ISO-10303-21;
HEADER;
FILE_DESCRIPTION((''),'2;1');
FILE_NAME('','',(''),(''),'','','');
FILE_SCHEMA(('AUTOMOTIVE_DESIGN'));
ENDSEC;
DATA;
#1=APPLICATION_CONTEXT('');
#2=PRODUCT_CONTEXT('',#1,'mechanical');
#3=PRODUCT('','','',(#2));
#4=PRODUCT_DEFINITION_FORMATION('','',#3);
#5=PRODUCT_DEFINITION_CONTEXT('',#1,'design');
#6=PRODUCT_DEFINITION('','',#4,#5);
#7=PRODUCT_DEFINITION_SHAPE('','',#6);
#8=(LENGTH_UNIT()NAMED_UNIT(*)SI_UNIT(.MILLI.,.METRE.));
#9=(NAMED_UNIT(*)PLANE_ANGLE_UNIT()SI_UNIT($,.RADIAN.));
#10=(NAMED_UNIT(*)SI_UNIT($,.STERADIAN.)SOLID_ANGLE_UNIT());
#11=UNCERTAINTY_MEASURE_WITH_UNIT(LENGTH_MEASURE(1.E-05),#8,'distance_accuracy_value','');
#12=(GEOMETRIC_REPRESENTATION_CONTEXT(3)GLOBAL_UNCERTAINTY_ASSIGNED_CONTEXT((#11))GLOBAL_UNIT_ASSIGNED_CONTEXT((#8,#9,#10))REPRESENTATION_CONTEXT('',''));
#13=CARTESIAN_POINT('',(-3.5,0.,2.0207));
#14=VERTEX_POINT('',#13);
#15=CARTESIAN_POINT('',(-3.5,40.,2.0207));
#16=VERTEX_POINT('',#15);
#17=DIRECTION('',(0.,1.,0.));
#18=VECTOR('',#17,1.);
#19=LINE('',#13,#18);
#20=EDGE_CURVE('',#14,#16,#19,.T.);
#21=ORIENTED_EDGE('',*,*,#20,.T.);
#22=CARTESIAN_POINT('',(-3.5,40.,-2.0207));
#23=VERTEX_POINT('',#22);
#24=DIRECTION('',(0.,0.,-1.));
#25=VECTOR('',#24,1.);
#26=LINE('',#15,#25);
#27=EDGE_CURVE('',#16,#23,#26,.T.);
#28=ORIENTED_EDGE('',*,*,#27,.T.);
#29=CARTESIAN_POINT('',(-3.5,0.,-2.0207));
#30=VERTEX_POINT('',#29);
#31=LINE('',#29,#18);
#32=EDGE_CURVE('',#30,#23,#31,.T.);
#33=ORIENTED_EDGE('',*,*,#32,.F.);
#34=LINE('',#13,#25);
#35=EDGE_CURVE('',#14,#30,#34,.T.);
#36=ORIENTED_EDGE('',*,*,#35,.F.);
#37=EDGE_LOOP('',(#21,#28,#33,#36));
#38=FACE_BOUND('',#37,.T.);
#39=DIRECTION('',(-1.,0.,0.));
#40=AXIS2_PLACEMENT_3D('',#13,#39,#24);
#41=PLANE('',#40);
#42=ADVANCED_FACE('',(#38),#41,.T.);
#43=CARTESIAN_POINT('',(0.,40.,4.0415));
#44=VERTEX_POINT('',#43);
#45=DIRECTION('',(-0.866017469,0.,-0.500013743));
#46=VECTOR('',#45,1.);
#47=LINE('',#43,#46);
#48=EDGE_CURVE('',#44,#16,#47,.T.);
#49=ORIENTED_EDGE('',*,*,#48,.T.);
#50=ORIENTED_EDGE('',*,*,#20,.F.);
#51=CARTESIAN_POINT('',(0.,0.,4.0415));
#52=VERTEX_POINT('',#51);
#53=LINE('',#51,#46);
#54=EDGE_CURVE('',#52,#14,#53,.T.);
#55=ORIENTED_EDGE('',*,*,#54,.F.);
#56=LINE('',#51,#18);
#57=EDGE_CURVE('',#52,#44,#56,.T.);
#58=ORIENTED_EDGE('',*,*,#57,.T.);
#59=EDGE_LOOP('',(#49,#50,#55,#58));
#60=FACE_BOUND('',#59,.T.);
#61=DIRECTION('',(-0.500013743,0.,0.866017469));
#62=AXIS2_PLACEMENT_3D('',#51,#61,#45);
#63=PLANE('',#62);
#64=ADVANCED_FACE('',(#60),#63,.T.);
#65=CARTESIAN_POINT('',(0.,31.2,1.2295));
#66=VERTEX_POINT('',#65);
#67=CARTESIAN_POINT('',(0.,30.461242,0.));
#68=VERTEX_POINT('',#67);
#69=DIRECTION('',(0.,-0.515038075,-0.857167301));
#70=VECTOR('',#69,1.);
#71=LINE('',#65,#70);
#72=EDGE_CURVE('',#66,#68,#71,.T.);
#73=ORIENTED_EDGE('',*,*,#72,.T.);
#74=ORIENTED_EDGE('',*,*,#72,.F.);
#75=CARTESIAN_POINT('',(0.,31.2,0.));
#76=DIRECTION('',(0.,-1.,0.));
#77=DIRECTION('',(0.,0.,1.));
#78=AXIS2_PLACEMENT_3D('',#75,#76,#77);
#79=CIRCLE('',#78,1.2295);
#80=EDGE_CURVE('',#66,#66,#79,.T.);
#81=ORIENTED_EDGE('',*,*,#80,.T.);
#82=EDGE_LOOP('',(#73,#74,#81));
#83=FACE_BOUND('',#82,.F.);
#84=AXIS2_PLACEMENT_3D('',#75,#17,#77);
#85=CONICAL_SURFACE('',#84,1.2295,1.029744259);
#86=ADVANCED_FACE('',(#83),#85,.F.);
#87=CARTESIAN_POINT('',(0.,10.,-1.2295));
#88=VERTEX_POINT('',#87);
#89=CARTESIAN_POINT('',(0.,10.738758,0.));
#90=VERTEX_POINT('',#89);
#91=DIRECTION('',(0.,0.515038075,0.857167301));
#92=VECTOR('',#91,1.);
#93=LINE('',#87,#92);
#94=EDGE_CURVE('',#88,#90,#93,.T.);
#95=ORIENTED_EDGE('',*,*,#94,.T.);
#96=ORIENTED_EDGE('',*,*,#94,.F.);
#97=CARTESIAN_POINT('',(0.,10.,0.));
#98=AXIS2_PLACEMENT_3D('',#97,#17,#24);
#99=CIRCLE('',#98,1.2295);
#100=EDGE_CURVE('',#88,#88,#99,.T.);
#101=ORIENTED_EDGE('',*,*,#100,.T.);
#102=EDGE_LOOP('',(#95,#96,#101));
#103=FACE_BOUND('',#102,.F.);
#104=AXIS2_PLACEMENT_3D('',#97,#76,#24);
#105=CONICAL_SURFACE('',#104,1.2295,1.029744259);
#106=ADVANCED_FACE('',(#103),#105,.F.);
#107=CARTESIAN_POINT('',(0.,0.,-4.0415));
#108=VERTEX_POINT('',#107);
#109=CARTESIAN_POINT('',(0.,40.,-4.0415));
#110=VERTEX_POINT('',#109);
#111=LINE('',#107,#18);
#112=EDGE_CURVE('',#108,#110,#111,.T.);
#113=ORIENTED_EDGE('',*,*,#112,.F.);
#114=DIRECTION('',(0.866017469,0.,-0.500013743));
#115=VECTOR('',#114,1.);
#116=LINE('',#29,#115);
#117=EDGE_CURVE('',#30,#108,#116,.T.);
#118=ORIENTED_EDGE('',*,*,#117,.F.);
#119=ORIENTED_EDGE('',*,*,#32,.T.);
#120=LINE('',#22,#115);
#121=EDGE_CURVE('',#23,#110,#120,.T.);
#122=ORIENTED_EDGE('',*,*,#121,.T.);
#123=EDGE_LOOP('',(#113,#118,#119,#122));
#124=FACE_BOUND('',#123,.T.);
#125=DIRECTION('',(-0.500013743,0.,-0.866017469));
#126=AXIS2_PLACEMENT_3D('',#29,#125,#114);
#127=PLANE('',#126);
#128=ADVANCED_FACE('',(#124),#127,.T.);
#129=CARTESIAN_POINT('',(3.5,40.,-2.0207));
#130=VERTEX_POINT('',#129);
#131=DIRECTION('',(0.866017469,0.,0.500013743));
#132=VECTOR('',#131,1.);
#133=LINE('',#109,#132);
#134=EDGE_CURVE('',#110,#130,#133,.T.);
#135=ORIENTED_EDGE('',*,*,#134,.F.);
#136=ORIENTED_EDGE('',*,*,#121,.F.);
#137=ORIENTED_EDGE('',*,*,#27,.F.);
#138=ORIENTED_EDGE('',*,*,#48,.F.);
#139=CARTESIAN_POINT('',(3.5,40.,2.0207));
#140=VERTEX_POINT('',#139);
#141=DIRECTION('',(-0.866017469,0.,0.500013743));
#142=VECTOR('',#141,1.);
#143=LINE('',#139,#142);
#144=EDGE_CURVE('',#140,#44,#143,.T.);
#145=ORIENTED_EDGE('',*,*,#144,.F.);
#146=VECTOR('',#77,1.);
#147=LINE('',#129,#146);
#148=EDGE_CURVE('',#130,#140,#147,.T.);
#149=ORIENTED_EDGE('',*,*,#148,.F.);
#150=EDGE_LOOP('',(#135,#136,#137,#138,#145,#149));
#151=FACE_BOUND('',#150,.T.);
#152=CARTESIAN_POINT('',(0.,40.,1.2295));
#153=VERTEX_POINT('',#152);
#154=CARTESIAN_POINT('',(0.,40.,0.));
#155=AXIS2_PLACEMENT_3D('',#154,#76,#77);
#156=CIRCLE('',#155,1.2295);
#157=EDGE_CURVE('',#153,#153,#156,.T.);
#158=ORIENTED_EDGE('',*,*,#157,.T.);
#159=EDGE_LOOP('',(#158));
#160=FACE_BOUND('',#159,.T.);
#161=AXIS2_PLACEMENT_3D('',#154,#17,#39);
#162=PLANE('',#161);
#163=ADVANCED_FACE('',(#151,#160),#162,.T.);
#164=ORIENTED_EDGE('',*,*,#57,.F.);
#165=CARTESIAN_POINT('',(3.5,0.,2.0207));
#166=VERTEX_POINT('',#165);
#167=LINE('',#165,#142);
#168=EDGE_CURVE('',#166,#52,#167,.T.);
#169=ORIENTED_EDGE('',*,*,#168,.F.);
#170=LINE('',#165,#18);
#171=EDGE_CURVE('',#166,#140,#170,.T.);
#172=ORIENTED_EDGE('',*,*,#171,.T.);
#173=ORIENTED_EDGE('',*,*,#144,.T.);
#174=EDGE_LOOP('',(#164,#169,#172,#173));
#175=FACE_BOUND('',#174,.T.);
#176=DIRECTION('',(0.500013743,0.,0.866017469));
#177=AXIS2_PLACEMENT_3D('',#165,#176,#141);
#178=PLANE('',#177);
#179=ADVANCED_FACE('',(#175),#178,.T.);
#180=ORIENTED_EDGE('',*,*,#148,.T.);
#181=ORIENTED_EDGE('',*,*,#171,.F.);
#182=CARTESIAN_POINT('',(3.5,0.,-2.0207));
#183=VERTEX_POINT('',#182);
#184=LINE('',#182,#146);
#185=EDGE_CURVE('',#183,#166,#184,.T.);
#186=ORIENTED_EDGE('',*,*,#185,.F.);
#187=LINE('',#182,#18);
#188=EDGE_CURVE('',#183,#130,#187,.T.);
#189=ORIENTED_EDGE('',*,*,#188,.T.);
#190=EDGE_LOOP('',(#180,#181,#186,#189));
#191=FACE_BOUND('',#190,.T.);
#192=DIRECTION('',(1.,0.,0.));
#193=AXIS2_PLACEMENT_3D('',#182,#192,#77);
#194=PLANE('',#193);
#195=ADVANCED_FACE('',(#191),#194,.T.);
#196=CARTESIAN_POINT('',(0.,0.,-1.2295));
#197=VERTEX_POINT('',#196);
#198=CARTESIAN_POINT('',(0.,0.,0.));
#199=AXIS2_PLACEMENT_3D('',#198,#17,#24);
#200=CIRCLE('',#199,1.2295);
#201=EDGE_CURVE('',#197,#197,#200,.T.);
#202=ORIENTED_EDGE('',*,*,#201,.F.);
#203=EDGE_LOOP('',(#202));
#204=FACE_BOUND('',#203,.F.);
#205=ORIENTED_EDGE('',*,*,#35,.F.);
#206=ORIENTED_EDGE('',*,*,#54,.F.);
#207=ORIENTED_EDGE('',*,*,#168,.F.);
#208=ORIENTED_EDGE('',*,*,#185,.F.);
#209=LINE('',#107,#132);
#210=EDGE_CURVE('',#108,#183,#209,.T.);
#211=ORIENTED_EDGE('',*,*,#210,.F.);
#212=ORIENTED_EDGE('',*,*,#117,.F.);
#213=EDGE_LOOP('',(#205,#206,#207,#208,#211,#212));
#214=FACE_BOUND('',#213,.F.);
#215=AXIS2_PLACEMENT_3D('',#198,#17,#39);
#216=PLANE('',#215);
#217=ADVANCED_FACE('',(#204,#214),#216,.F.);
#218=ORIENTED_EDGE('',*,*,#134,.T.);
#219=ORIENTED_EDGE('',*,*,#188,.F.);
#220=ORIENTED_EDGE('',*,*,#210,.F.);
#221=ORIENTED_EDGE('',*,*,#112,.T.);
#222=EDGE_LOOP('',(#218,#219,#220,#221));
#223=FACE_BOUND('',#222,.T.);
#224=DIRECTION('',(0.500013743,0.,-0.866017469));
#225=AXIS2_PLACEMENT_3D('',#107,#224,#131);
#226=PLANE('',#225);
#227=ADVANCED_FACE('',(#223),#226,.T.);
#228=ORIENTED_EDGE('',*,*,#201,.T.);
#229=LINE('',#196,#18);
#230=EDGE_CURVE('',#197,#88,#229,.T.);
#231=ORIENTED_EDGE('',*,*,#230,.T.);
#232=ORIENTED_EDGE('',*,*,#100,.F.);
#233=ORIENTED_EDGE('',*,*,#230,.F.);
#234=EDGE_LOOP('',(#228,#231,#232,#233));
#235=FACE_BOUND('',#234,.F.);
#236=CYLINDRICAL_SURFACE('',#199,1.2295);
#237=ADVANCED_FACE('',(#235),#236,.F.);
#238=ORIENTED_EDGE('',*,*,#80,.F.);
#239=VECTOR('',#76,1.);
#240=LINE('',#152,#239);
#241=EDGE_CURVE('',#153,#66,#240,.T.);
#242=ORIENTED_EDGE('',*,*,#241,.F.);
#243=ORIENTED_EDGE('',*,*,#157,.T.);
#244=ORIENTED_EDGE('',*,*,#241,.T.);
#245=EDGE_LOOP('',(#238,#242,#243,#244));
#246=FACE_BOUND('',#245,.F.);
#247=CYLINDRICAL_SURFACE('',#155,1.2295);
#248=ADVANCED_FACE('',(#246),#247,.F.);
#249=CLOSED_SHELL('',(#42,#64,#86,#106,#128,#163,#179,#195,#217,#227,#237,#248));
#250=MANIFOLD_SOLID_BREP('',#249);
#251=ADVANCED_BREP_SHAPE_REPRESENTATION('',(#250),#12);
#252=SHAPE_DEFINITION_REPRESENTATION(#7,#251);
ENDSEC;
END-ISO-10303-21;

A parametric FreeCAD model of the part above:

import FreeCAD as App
import Part
import Sketcher

V = App.Vector
Q = App.Units.Quantity


def add_polygon(sketch, points):
    """Adds a closed chain of lines whose ends are joined by coincident constraints."""
    first, n = sketch.GeometryCount, len(points)
    for a, b in zip(points, points[1:] + points[:1]):
        sketch.addGeometry(Part.LineSegment(App.Vector(*a, 0), App.Vector(*b, 0)), False)
    for i in range(n):
        sketch.addConstraint(Sketcher.Constraint("Coincident", first + i, 2, first + (i + 1) % n, 1))

doc = App.newDocument("Part")
body = doc.addObject("PartDesign::Body", "Body")

sketch1 = doc.addObject("Sketcher::SketchObject", "Sketch")
body.addObject(sketch1)
sketch1.AttachmentSupport = (doc.XZ_Plane, [""])
sketch1.MapMode = "FlatFace"
add_polygon(sketch1, [(3.5, 2), (3.5, -2), (0, -4), (-3.5, -2), (-3.5, 2), (0, 4)])
sketch1.addConstraint([
    Sketcher.Constraint("Vertical", 0),
    Sketcher.Constraint("Vertical", 3),
    Sketcher.Constraint("Symmetric", 0, 2, 3, 2, -1, 1),
    Sketcher.Constraint("Symmetric", 1, 2, 4, 2, -1, 1),
    Sketcher.Constraint("PointOnObject", 1, 2, -2),
    Sketcher.Constraint("Parallel", 2, 5),
    Sketcher.Constraint("Horizontal", 0, 2, 2, 2),
    Sketcher.Constraint("DistanceX", 2, 2, 0, 2, Q("7 mm")),
    Sketcher.Constraint("Angle", 1, Q("-149.999 deg")),
    Sketcher.Constraint("DistanceY", 0, 2, 0, 1, Q("4.0414 mm")),
])
pad1 = doc.addObject("PartDesign::Pad", "Pad")
body.addObject(pad1)
pad1.Profile = sketch1
pad1.Length = 40
pad1.Reversed = True

sketch2 = doc.addObject("Sketcher::SketchObject", "Sketch001")
body.addObject(sketch2)
sketch2.AttachmentSupport = (doc.XZ_Plane, [""])
sketch2.MapMode = "FlatFace"
sketch2.AttachmentOffset = App.Placement(V(0, 0, -40), App.Rotation())
sketch2.addGeometry(Part.Circle(V(0, 0, 0), V(0, 0, 1), 1.2), False)
sketch2.addConstraint([
    Sketcher.Constraint("Coincident", 0, 3, -1, 1),
    Sketcher.Constraint("Diameter", 0, Q("2.459 mm")),
])
doc.recompute()
hole = doc.addObject("PartDesign::Hole", "Hole")
body.addObject(hole)
hole.Profile = sketch2
hole.ThreadType = "None"
hole.Diameter = 2.459
hole.DepthType = "Dimension"
hole.Depth = 8.8
hole.DrillPoint = "Angled"
hole.DrillPointAngle = 118
hole.Reversed = True

sketch3 = doc.addObject("Sketcher::SketchObject", "Sketch002")
body.addObject(sketch3)
sketch3.AttachmentSupport = (doc.XZ_Plane, [""])
sketch3.MapMode = "FlatFace"
sketch3.addGeometry(Part.Circle(V(0, 0, 0), V(0, 0, 1), 1.2), False)
sketch3.addConstraint([
    Sketcher.Constraint("Coincident", 0, 3, -1, 1),
    Sketcher.Constraint("Diameter", 0, Q("2.459 mm")),
])
doc.recompute()
hole2 = doc.addObject("PartDesign::Hole", "Hole001")
body.addObject(hole2)
hole2.Profile = sketch3
hole2.ThreadType = "None"
hole2.Diameter = 2.459
hole2.DepthType = "Dimension"
hole2.Depth = 10
hole2.DrillPoint = "Angled"
hole2.DrillPointAngle = 118

doc.recompute()
